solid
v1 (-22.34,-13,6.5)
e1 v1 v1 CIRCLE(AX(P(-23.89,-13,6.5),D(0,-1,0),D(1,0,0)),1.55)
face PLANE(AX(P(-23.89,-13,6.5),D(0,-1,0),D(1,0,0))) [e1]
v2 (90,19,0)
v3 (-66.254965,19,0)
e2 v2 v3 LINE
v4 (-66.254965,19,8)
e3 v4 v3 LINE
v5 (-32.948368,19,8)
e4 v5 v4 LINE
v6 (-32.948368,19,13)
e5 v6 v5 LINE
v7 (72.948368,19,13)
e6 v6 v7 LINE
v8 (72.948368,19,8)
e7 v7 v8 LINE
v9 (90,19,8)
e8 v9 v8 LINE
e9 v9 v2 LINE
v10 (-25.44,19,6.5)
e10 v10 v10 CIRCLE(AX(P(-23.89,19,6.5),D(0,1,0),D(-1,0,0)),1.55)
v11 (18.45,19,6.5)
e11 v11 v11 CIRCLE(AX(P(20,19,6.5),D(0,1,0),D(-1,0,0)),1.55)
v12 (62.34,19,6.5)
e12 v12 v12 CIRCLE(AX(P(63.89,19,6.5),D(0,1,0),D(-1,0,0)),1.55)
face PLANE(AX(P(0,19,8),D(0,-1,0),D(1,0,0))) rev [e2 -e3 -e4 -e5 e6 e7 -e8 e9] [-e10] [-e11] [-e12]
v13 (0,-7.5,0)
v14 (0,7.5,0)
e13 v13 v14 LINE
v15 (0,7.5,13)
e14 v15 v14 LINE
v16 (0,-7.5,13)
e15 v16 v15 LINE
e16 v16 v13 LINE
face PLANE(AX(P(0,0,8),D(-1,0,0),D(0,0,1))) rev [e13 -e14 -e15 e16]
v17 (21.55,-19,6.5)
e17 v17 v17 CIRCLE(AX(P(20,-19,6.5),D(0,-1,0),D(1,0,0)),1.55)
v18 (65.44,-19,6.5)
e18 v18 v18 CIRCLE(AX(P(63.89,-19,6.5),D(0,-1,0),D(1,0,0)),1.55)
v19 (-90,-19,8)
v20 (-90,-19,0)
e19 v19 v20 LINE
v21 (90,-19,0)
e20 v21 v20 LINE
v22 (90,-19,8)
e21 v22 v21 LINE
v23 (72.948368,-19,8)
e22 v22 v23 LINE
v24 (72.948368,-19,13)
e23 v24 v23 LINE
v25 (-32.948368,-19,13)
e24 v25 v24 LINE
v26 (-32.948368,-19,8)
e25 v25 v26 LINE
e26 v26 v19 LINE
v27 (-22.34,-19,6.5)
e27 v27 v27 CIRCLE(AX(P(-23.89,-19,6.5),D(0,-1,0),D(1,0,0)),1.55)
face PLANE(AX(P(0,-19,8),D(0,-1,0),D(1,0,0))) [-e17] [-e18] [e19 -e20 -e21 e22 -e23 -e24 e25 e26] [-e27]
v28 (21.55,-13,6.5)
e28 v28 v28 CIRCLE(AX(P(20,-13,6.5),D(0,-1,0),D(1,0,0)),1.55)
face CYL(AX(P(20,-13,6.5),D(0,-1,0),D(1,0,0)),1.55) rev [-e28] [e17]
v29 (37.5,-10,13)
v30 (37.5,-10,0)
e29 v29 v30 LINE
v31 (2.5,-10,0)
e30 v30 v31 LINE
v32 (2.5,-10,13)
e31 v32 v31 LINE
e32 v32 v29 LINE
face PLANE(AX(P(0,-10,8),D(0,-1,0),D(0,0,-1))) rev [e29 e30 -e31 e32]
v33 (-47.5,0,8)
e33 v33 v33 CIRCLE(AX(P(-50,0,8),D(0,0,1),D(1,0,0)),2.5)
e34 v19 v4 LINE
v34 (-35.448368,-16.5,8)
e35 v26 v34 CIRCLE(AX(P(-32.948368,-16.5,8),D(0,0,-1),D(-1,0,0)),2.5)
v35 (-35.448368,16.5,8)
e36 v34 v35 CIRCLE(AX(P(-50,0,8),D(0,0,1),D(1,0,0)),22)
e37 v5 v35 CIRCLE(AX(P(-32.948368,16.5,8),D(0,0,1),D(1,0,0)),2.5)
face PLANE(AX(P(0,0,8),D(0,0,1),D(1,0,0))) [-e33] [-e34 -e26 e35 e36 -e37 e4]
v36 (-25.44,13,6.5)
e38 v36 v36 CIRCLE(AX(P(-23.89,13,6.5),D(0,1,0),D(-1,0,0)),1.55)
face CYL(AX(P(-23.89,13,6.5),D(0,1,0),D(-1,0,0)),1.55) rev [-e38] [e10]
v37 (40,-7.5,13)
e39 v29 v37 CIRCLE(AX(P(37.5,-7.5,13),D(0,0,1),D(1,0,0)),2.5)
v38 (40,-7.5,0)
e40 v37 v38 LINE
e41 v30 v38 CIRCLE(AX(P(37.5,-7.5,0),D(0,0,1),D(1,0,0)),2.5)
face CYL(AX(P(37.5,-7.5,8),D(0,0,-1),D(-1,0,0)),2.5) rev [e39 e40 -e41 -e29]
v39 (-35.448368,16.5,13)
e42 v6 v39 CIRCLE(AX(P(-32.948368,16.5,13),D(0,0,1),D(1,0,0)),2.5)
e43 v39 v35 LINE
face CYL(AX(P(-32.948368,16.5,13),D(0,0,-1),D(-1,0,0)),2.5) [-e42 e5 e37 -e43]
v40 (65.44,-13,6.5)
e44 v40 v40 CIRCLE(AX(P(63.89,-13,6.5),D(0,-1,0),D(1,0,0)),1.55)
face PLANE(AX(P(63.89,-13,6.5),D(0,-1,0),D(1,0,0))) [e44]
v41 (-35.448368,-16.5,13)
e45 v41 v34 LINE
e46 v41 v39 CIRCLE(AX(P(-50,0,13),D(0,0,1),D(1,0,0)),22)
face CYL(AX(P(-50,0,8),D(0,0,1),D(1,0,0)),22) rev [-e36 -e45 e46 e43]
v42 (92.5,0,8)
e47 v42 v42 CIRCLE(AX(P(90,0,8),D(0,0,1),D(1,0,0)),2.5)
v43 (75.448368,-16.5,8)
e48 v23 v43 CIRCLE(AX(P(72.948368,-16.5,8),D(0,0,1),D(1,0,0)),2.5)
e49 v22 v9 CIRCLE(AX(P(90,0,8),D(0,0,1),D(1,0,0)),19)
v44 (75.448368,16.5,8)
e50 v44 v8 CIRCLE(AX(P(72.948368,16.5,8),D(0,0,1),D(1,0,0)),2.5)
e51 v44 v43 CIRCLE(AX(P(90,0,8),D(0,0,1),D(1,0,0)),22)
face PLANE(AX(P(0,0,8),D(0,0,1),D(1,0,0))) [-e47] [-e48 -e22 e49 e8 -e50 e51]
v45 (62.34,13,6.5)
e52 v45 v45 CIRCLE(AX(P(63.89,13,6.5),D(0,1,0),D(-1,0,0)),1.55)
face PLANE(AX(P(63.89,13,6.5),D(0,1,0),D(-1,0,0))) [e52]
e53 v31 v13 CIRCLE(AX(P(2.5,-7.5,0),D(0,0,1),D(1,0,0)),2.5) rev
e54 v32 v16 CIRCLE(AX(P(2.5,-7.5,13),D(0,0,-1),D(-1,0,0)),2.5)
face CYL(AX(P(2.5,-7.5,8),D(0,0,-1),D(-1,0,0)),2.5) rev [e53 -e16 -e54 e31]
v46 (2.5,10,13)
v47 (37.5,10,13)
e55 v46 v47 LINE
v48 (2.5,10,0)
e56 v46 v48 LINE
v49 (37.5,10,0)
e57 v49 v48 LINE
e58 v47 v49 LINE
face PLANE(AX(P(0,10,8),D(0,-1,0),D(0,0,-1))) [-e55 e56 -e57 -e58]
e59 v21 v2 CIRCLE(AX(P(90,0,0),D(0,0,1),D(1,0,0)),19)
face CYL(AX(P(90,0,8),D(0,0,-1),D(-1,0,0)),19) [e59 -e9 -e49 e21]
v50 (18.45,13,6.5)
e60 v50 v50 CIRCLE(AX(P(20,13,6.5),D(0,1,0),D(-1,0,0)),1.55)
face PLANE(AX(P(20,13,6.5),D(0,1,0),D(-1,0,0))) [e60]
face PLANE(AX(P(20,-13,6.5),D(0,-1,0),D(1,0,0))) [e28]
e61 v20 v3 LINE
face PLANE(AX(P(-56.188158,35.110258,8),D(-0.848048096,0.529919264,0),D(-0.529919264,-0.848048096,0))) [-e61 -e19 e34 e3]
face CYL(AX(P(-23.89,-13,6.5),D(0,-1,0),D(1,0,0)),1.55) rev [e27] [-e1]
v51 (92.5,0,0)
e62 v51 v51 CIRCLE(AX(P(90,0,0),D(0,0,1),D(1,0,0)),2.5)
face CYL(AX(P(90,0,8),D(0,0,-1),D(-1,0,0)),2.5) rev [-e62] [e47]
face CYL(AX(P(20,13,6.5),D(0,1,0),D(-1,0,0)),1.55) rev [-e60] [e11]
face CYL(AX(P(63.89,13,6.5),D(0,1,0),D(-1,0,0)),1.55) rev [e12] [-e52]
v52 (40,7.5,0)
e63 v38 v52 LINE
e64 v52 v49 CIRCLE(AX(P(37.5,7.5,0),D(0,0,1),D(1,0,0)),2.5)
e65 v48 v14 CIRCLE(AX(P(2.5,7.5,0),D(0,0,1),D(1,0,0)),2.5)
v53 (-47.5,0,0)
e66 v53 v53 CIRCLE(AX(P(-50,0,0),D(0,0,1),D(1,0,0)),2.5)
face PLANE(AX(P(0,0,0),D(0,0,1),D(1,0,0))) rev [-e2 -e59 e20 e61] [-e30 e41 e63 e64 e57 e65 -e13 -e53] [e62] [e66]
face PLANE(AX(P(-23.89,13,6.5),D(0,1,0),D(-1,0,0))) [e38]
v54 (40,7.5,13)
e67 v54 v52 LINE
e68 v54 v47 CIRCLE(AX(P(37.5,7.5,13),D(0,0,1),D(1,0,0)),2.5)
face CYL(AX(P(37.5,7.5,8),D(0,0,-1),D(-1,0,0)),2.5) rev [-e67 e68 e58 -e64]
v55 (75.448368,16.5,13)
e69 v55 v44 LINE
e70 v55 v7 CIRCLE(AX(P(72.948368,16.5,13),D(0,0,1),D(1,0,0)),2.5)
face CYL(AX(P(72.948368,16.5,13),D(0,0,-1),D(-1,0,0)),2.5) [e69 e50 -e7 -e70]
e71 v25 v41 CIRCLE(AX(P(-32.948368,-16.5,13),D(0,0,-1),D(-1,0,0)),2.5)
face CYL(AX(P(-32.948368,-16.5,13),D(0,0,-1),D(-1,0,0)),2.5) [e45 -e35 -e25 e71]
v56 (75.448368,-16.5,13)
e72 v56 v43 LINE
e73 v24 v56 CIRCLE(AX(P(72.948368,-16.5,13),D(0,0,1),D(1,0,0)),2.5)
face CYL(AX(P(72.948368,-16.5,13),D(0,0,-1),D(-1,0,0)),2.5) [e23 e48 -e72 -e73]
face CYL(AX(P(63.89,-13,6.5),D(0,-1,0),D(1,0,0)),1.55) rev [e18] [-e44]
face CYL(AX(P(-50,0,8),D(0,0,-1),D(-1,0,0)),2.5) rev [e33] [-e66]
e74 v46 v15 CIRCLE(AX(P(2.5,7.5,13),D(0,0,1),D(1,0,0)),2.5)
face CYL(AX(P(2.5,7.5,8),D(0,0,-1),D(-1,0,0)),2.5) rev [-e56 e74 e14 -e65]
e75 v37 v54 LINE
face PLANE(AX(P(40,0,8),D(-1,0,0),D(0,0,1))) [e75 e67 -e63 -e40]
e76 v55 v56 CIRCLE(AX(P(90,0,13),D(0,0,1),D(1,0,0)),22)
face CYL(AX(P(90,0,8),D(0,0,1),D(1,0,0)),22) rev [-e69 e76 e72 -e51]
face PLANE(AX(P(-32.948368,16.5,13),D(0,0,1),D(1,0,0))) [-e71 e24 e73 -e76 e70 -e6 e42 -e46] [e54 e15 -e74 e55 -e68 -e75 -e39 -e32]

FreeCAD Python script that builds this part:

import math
import FreeCAD as App
import Part
import Sketcher
Q = App.Units.Quantity

doc = App.newDocument("Part")
params = doc.addObject("Spreadsheet::Sheet", "Params")
for row, (alias, value) in enumerate([
    ("sketch1_diameter", "5 mm"),
    ("sketch1_radius", "19 mm"),
    ("sketch1_width", "180 mm"),
    ("sketch1_width2", "35 mm"),
    ("sketch1_height", "15 mm"),
    ("pad1_length", "8 mm"),
    ("sketch2_radius", "2.5 mm"),
    ("sketch2_height", "33 mm"),
    ("pad2_length", "5 mm"),
    ("sketch3_radius", "2.5 mm"),
    ("sketch3_width", "35 mm"),
    ("sketch3_height", "15 mm"),
    ("sketch4_diameter", "3.1 mm"),
    ("pocket2_length", "6 mm"),
    ("sketch5_diameter", "3.1 mm"),
    ("pocket3_length", "6 mm"),
    ("sketch6_diameter", "44 mm"),
    ("pocket4_length", "5 mm"),
], start=1):
    params.set(f"A{row}", alias)
    params.set(f"B{row}", "=" + value)
    params.setAlias(f"B{row}", alias)

body = doc.addObject("PartDesign::Body", "Body")

# Sketch on XY plane
sketch1 = body.newObject("Sketcher::SketchObject", "Sketch")
sketch1.AttachmentSupport = (doc.getObject("XY_Plane"), [""])
sketch1.MapMode = "FlatFace"
sketch1.addGeometry(Part.LineSegment(App.Vector(-66.3, 19, 0), App.Vector(-90, -19, 0)), False)
sketch1.addGeometry(Part.LineSegment(App.Vector(-90, -19, 0), App.Vector(90, -19, 0)), False)
sketch1.addGeometry(Part.ArcOfCircle(Part.Circle(App.Vector(90, 0, 0), App.Vector(0, 0, 1), 19), math.radians(-90), math.radians(0)), False)
sketch1.addGeometry(Part.ArcOfCircle(Part.Circle(App.Vector(90, 0, 0), App.Vector(0, 0, 1), 19), math.radians(0), math.radians(90)), False)
sketch1.addGeometry(Part.LineSegment(App.Vector(90, 19, 0), App.Vector(-66.3, 19, 0)), False)
sketch1.addGeometry(Part.Circle(App.Vector(-50, 0, 0), App.Vector(0, 0, 1), 2.5), False)
sketch1.addGeometry(Part.LineSegment(App.Vector(40, 7.5, 0), App.Vector(40, -7.5, 0)), False)
sketch1.addGeometry(Part.ArcOfCircle(Part.Circle(App.Vector(37.5, -7.5, 0), App.Vector(0, 0, 1), 2.5), math.radians(-90), math.radians(0)), False)
sketch1.addGeometry(Part.LineSegment(App.Vector(37.5, -10, 0), App.Vector(2.5, -10, 0)), False)
sketch1.addGeometry(Part.ArcOfCircle(Part.Circle(App.Vector(2.5, -7.5, 0), App.Vector(0, 0, 1), 2.5), math.radians(180), math.radians(270)), False)
sketch1.addGeometry(Part.LineSegment(App.Vector(0, -7.5, 0), App.Vector(0, 7.5, 0)), False)
sketch1.addGeometry(Part.ArcOfCircle(Part.Circle(App.Vector(2.5, 7.5, 0), App.Vector(0, 0, 1), 2.5), math.radians(90), math.radians(180)), False)
sketch1.addGeometry(Part.LineSegment(App.Vector(2.5, 10, 0), App.Vector(37.5, 10, 0)), False)
sketch1.addGeometry(Part.ArcOfCircle(Part.Circle(App.Vector(37.5, 7.5, 0), App.Vector(0, 0, 1), 2.5), math.radians(0), math.radians(90)), False)
sketch1.addGeometry(Part.ArcOfCircle(Part.Circle(App.Vector(90, 0, 0), App.Vector(0, 0, 1), 2.5), math.radians(90), math.radians(270)), False)
sketch1.addGeometry(Part.ArcOfCircle(Part.Circle(App.Vector(90, 0, 0), App.Vector(0, 0, 1), 2.5), math.radians(0), math.radians(90)), False)
sketch1.addGeometry(Part.ArcOfCircle(Part.Circle(App.Vector(90, 0, 0), App.Vector(0, 0, 1), 2.5), math.radians(-90), math.radians(0)), False)
sketch1.addConstraint(Sketcher.Constraint("Coincident", 0, 2, 1, 1))
sketch1.addConstraint(Sketcher.Constraint("Tangent", 1, 2, 2, 1))
sketch1.addConstraint(Sketcher.Constraint("Tangent", 2, 2, 3, 1))
sketch1.addConstraint(Sketcher.Constraint("Tangent", 3, 2, 4, 1))
sketch1.addConstraint(Sketcher.Constraint("Coincident", 4, 2, 0, 1))
sketch1.addConstraint(Sketcher.Constraint("Tangent", 6, 2, 7, 2))
sketch1.addConstraint(Sketcher.Constraint("Tangent", 7, 1, 8, 1))
sketch1.addConstraint(Sketcher.Constraint("Tangent", 8, 2, 9, 2))
sketch1.addConstraint(Sketcher.Constraint("Tangent", 9, 1, 10, 1))
sketch1.addConstraint(Sketcher.Constraint("Tangent", 10, 2, 11, 2))
sketch1.addConstraint(Sketcher.Constraint("Tangent", 11, 1, 12, 1))
sketch1.addConstraint(Sketcher.Constraint("Tangent", 12, 2, 13, 2))
sketch1.addConstraint(Sketcher.Constraint("Tangent", 13, 1, 6, 1))
sketch1.addConstraint(Sketcher.Constraint("Tangent", 14, 1, 15, 2))
sketch1.addConstraint(Sketcher.Constraint("Tangent", 15, 1, 16, 2))
sketch1.addConstraint(Sketcher.Constraint("Tangent", 16, 1, 14, 2))
sketch1.addConstraint(Sketcher.Constraint("Horizontal", 1))
sketch1.addConstraint(Sketcher.Constraint("Horizontal", 4))
sketch1.addConstraint(Sketcher.Constraint("Vertical", 6))
sketch1.addConstraint(Sketcher.Constraint("Horizontal", 8))
sketch1.addConstraint(Sketcher.Constraint("Vertical", 10))
sketch1.addConstraint(Sketcher.Constraint("Horizontal", 12))
sketch1.addConstraint(Sketcher.Constraint("Coincident", 14, 3, 2, 3))
sketch1.addConstraint(Sketcher.Constraint("Equal", 2, 3))
sketch1.addConstraint(Sketcher.Constraint("Equal", 5, 7))
sketch1.addConstraint(Sketcher.Constraint("Equal", 7, 9))
sketch1.addConstraint(Sketcher.Constraint("Equal", 9, 11))
sketch1.addConstraint(Sketcher.Constraint("Equal", 11, 13))
sketch1.addConstraint(Sketcher.Constraint("Equal", 13, 14))
sketch1.addConstraint(Sketcher.Constraint("Symmetric", 0, 2, 3, 2, -1, 1))
sketch1.addConstraint(Sketcher.Constraint("Symmetric", 9, 1, 10, 2, -1, 1))
sketch1.addConstraint(Sketcher.Constraint("PointOnObject", 5, 3, -1))
sketch1.addConstraint(Sketcher.Constraint("PointOnObject", 2, 2, -1))
sketch1.addConstraint(Sketcher.Constraint("PointOnObject", 15, 1, -1))
sketch1.addConstraint(Sketcher.Constraint("Vertical", 3, 2, 14, 1))
sketch1.addConstraint(Sketcher.Constraint("Vertical", 14, 1, 16, 1))
sketch1.addConstraint(Sketcher.Constraint("Diameter", 5, 5.0))
sketch1.addConstraint(Sketcher.Constraint("Radius", 2, 19.0))
sketch1.addConstraint(Sketcher.Constraint("DistanceX", 1, 1, 1, 2, 180.0))
sketch1.addConstraint(Sketcher.Constraint("DistanceX", 8, 2, 8, 1, 35.0))
sketch1.addConstraint(Sketcher.Constraint("DistanceY", 6, 2, 6, 1, 15.0))
sketch1.addConstraint(Sketcher.Constraint("Angle", 0, Q("-122 deg")))
sketch1.addConstraint(Sketcher.Constraint("DistanceX", 5, 3, -1, 1, 50.0))
sketch1.setExpression("Constraints[36]", "Params.sketch1_diameter")
sketch1.setExpression("Constraints[37]", "Params.sketch1_radius")
sketch1.setExpression("Constraints[38]", "Params.sketch1_width")
sketch1.setExpression("Constraints[39]", "Params.sketch1_width2")
sketch1.setExpression("Constraints[40]", "Params.sketch1_height")
pad1 = body.newObject("PartDesign::Pad", "Pad")
pad1.Profile = sketch1
pad1.setExpression("Length", "Params.pad1_length")

# Sketch on XY plane
sketch2 = body.newObject("Sketcher::SketchObject", "Sketch001")
sketch2.AttachmentSupport = (doc.getObject("XY_Plane"), [""])
sketch2.MapMode = "FlatFace"
sketch2.AttachmentOffset = App.Placement(App.Vector(0, 0, 8), App.Rotation())
sketch2.addGeometry(Part.LineSegment(App.Vector(72.9, 19, 0), App.Vector(-32.9, 19, 0)), False)
sketch2.addGeometry(Part.ArcOfCircle(Part.Circle(App.Vector(-32.9, 16.5, 0), App.Vector(0, 0, 1), 2.5), math.radians(90), math.radians(180)), False)
sketch2.addGeometry(Part.LineSegment(App.Vector(-35.4, 16.5, 0), App.Vector(-35.4, -16.5, 0)), False)
sketch2.addGeometry(Part.ArcOfCircle(Part.Circle(App.Vector(-32.9, -16.5, 0), App.Vector(0, 0, 1), 2.5), math.radians(180), math.radians(270)), False)
sketch2.addGeometry(Part.LineSegment(App.Vector(-32.9, -19, 0), App.Vector(72.9, -19, 0)), False)
sketch2.addGeometry(Part.ArcOfCircle(Part.Circle(App.Vector(72.9, -16.5, 0), App.Vector(0, 0, 1), 2.5), math.radians(-90), math.radians(0)), False)
sketch2.addGeometry(Part.LineSegment(App.Vector(75.4, -16.5, 0), App.Vector(75.4, 16.5, 0)), False)
sketch2.addGeometry(Part.ArcOfCircle(Part.Circle(App.Vector(72.9, 16.5, 0), App.Vector(0, 0, 1), 2.5), math.radians(0), math.radians(90)), False)
sketch2.addConstraint(Sketcher.Constraint("Tangent", 0, 2, 1, 1))
sketch2.addConstraint(Sketcher.Constraint("Tangent", 1, 2, 2, 1))
sketch2.addConstraint(Sketcher.Constraint("Tangent", 2, 2, 3, 1))
sketch2.addConstraint(Sketcher.Constraint("Tangent", 3, 2, 4, 1))
sketch2.addConstraint(Sketcher.Constraint("Tangent", 4, 2, 5, 1))
sketch2.addConstraint(Sketcher.Constraint("Tangent", 5, 2, 6, 1))
sketch2.addConstraint(Sketcher.Constraint("Tangent", 6, 2, 7, 1))
sketch2.addConstraint(Sketcher.Constraint("Tangent", 7, 2, 0, 1))
sketch2.addConstraint(Sketcher.Constraint("Horizontal", 0))
sketch2.addConstraint(Sketcher.Constraint("Vertical", 2))
sketch2.addConstraint(Sketcher.Constraint("Horizontal", 4))
sketch2.addConstraint(Sketcher.Constraint("Vertical", 6))
sketch2.addConstraint(Sketcher.Constraint("Equal", 1, 3))
sketch2.addConstraint(Sketcher.Constraint("Equal", 3, 5))
sketch2.addConstraint(Sketcher.Constraint("Equal", 5, 7))
sketch2.addConstraint(Sketcher.Constraint("Radius", 1, 2.5))
sketch2.addConstraint(Sketcher.Constraint("DistanceY", 2, 2, 2, 1, 33.0))
sketch2.addConstraint(Sketcher.Constraint("DistanceY", -1, 1, 0, 2, 19.0))
sketch2.addConstraint(Sketcher.Constraint("DistanceX", 0, 2, 0, 1, 105.896736))
sketch2.addConstraint(Sketcher.Constraint("DistanceX", 1, 3, -1, 1, 32.948368))
sketch2.setExpression("Constraints[15]", "Params.sketch2_radius")
sketch2.setExpression("Constraints[16]", "Params.sketch2_height")
pad2 = body.newObject("PartDesign::Pad", "Pad001")
pad2.Profile = sketch2
pad2.setExpression("Length", "Params.pad2_length")

# Sketch on XY plane
sketch3 = body.newObject("Sketcher::SketchObject", "Sketch002")
sketch3.AttachmentSupport = (doc.getObject("XY_Plane"), [""])
sketch3.MapMode = "FlatFace"
sketch3.AttachmentOffset = App.Placement(App.Vector(0, 0, 13), App.Rotation())
sketch3.addGeometry(Part.LineSegment(App.Vector(2.5, -10, 0), App.Vector(37.5, -10, 0)), False)
sketch3.addGeometry(Part.ArcOfCircle(Part.Circle(App.Vector(37.5, -7.5, 0), App.Vector(0, 0, 1), 2.5), math.radians(-90), math.radians(0)), False)
sketch3.addGeometry(Part.LineSegment(App.Vector(40, -7.5, 0), App.Vector(40, 7.5, 0)), False)
sketch3.addGeometry(Part.ArcOfCircle(Part.Circle(App.Vector(37.5, 7.5, 0), App.Vector(0, 0, 1), 2.5), math.radians(0), math.radians(90)), False)
sketch3.addGeometry(Part.LineSegment(App.Vector(37.5, 10, 0), App.Vector(2.5, 10, 0)), False)
sketch3.addGeometry(Part.ArcOfCircle(Part.Circle(App.Vector(2.5, 7.5, 0), App.Vector(0, 0, 1), 2.5), math.radians(90), math.radians(180)), False)
sketch3.addGeometry(Part.LineSegment(App.Vector(0, 7.5, 0), App.Vector(0, -7.5, 0)), False)
sketch3.addGeometry(Part.ArcOfCircle(Part.Circle(App.Vector(2.5, -7.5, 0), App.Vector(0, 0, 1), 2.5), math.radians(180), math.radians(270)), False)
sketch3.addConstraint(Sketcher.Constraint("Tangent", 0, 2, 1, 1))
sketch3.addConstraint(Sketcher.Constraint("Tangent", 1, 2, 2, 1))
sketch3.addConstraint(Sketcher.Constraint("Tangent", 2, 2, 3, 1))
sketch3.addConstraint(Sketcher.Constraint("Tangent", 3, 2, 4, 1))
sketch3.addConstraint(Sketcher.Constraint("Tangent", 4, 2, 5, 1))
sketch3.addConstraint(Sketcher.Constraint("Tangent", 5, 2, 6, 1))
sketch3.addConstraint(Sketcher.Constraint("Tangent", 6, 2, 7, 1))
sketch3.addConstraint(Sketcher.Constraint("Tangent", 7, 2, 0, 1))
sketch3.addConstraint(Sketcher.Constraint("Horizontal", 0))
sketch3.addConstraint(Sketcher.Constraint("Vertical", 2))
sketch3.addConstraint(Sketcher.Constraint("Horizontal", 4))
sketch3.addConstraint(Sketcher.Constraint("Vertical", 6))
sketch3.addConstraint(Sketcher.Constraint("Equal", 1, 3))
sketch3.addConstraint(Sketcher.Constraint("Equal", 3, 5))
sketch3.addConstraint(Sketcher.Constraint("Equal", 5, 7))
sketch3.addConstraint(Sketcher.Constraint("Symmetric", 5, 2, 6, 2, -1, 1))
sketch3.addConstraint(Sketcher.Constraint("Radius", 1, 2.5))
sketch3.addConstraint(Sketcher.Constraint("DistanceX", 0, 1, 0, 2, 35.0))
sketch3.addConstraint(Sketcher.Constraint("DistanceY", 2, 1, 2, 2, 15.0))
sketch3.setExpression("Constraints[16]", "Params.sketch3_radius")
sketch3.setExpression("Constraints[17]", "Params.sketch3_width")
sketch3.setExpression("Constraints[18]", "Params.sketch3_height")
pocket1 = body.newObject("PartDesign::Pocket", "Pocket")
pocket1.Profile = sketch3
pocket1.Type = "ThroughAll"

# Sketch on XZ plane
sketch4 = body.newObject("Sketcher::SketchObject", "Sketch003")
sketch4.AttachmentSupport = (doc.getObject("XZ_Plane"), [""])
sketch4.MapMode = "FlatFace"
sketch4.AttachmentOffset = App.Placement(App.Vector(0, 0, 19), App.Rotation())
sketch4.addGeometry(Part.Circle(App.Vector(-23.9, 6.5, 0), App.Vector(0, 0, 1), 1.6), False)
sketch4.addGeometry(Part.Circle(App.Vector(20, 6.5, 0), App.Vector(0, 0, 1), 1.6), False)
sketch4.addGeometry(Part.Circle(App.Vector(63.9, 6.5, 0), App.Vector(0, 0, 1), 1.6), False)
sketch4.addConstraint(Sketcher.Constraint("Equal", 0, 1))
sketch4.addConstraint(Sketcher.Constraint("Equal", 1, 2))
sketch4.addConstraint(Sketcher.Constraint("Horizontal", 0, 3, 1, 3))
sketch4.addConstraint(Sketcher.Constraint("Horizontal", 1, 3, 2, 3))
sketch4.addConstraint(Sketcher.Constraint("Diameter", 0, 3.1))
sketch4.addConstraint(Sketcher.Constraint("DistanceX", -1, 1, 1, 3, 20.0))
sketch4.addConstraint(Sketcher.Constraint("DistanceY", -1, 1, 0, 3, 6.5))
sketch4.addConstraint(Sketcher.Constraint("DistanceX", 0, 3, -1, 1, 23.89))
sketch4.addConstraint(Sketcher.Constraint("DistanceX", -1, 1, 2, 3, 63.89))
sketch4.setExpression("Constraints[4]", "Params.sketch4_diameter")
pocket2 = body.newObject("PartDesign::Pocket", "Pocket001")
pocket2.Profile = sketch4
pocket2.setExpression("Length", "Params.pocket2_length")

# Sketch on XZ plane
sketch5 = body.newObject("Sketcher::SketchObject", "Sketch004")
sketch5.AttachmentSupport = (doc.getObject("XZ_Plane"), [""])
sketch5.MapMode = "FlatFace"
sketch5.AttachmentOffset = App.Placement(App.Vector(0, 0, -13), App.Rotation())
sketch5.addGeometry(Part.Circle(App.Vector(-23.9, 6.5, 0), App.Vector(0, 0, 1), 1.6), False)
sketch5.addGeometry(Part.Circle(App.Vector(20, 6.5, 0), App.Vector(0, 0, 1), 1.6), False)
sketch5.addGeometry(Part.Circle(App.Vector(63.9, 6.5, 0), App.Vector(0, 0, 1), 1.6), False)
sketch5.addConstraint(Sketcher.Constraint("Equal", 0, 1))
sketch5.addConstraint(Sketcher.Constraint("Equal", 1, 2))
sketch5.addConstraint(Sketcher.Constraint("Horizontal", 0, 3, 1, 3))
sketch5.addConstraint(Sketcher.Constraint("Horizontal", 1, 3, 2, 3))
sketch5.addConstraint(Sketcher.Constraint("Diameter", 0, 3.1))
sketch5.addConstraint(Sketcher.Constraint("DistanceX", -1, 1, 1, 3, 20.0))
sketch5.addConstraint(Sketcher.Constraint("DistanceY", -1, 1, 0, 3, 6.5))
sketch5.addConstraint(Sketcher.Constraint("DistanceX", 0, 3, -1, 1, 23.89))
sketch5.addConstraint(Sketcher.Constraint("DistanceX", -1, 1, 2, 3, 63.89))
sketch5.setExpression("Constraints[4]", "Params.sketch5_diameter")
pocket3 = body.newObject("PartDesign::Pocket", "Pocket002")
pocket3.Profile = sketch5
pocket3.setExpression("Length", "Params.pocket3_length")

# Sketch on XY plane
sketch6 = body.newObject("Sketcher::SketchObject", "Sketch005")
sketch6.AttachmentSupport = (doc.getObject("XY_Plane"), [""])
sketch6.MapMode = "FlatFace"
sketch6.AttachmentOffset = App.Placement(App.Vector(0, 0, 13), App.Rotation())
sketch6.addGeometry(Part.Circle(App.Vector(-50, 0, 0), App.Vector(0, 0, 1), 22), False)
sketch6.addGeometry(Part.Circle(App.Vector(90, 0, 0), App.Vector(0, 0, 1), 22), False)
sketch6.addConstraint(Sketcher.Constraint("Equal", 0, 1))
sketch6.addConstraint(Sketcher.Constraint("PointOnObject", 0, 3, -1))
sketch6.addConstraint(Sketcher.Constraint("PointOnObject", 1, 3, -1))
sketch6.addConstraint(Sketcher.Constraint("Diameter", 0, 44.0))
sketch6.addConstraint(Sketcher.Constraint("DistanceX", 0, 3, -1, 1, 50.0))
sketch6.addConstraint(Sketcher.Constraint("DistanceX", -1, 1, 1, 3, 90.0))
sketch6.setExpression("Constraints[3]", "Params.sketch6_diameter")
pocket4 = body.newObject("PartDesign::Pocket", "Pocket003")
pocket4.Profile = sketch6
pocket4.setExpression("Length", "Params.pocket4_length")

doc.recompute()
